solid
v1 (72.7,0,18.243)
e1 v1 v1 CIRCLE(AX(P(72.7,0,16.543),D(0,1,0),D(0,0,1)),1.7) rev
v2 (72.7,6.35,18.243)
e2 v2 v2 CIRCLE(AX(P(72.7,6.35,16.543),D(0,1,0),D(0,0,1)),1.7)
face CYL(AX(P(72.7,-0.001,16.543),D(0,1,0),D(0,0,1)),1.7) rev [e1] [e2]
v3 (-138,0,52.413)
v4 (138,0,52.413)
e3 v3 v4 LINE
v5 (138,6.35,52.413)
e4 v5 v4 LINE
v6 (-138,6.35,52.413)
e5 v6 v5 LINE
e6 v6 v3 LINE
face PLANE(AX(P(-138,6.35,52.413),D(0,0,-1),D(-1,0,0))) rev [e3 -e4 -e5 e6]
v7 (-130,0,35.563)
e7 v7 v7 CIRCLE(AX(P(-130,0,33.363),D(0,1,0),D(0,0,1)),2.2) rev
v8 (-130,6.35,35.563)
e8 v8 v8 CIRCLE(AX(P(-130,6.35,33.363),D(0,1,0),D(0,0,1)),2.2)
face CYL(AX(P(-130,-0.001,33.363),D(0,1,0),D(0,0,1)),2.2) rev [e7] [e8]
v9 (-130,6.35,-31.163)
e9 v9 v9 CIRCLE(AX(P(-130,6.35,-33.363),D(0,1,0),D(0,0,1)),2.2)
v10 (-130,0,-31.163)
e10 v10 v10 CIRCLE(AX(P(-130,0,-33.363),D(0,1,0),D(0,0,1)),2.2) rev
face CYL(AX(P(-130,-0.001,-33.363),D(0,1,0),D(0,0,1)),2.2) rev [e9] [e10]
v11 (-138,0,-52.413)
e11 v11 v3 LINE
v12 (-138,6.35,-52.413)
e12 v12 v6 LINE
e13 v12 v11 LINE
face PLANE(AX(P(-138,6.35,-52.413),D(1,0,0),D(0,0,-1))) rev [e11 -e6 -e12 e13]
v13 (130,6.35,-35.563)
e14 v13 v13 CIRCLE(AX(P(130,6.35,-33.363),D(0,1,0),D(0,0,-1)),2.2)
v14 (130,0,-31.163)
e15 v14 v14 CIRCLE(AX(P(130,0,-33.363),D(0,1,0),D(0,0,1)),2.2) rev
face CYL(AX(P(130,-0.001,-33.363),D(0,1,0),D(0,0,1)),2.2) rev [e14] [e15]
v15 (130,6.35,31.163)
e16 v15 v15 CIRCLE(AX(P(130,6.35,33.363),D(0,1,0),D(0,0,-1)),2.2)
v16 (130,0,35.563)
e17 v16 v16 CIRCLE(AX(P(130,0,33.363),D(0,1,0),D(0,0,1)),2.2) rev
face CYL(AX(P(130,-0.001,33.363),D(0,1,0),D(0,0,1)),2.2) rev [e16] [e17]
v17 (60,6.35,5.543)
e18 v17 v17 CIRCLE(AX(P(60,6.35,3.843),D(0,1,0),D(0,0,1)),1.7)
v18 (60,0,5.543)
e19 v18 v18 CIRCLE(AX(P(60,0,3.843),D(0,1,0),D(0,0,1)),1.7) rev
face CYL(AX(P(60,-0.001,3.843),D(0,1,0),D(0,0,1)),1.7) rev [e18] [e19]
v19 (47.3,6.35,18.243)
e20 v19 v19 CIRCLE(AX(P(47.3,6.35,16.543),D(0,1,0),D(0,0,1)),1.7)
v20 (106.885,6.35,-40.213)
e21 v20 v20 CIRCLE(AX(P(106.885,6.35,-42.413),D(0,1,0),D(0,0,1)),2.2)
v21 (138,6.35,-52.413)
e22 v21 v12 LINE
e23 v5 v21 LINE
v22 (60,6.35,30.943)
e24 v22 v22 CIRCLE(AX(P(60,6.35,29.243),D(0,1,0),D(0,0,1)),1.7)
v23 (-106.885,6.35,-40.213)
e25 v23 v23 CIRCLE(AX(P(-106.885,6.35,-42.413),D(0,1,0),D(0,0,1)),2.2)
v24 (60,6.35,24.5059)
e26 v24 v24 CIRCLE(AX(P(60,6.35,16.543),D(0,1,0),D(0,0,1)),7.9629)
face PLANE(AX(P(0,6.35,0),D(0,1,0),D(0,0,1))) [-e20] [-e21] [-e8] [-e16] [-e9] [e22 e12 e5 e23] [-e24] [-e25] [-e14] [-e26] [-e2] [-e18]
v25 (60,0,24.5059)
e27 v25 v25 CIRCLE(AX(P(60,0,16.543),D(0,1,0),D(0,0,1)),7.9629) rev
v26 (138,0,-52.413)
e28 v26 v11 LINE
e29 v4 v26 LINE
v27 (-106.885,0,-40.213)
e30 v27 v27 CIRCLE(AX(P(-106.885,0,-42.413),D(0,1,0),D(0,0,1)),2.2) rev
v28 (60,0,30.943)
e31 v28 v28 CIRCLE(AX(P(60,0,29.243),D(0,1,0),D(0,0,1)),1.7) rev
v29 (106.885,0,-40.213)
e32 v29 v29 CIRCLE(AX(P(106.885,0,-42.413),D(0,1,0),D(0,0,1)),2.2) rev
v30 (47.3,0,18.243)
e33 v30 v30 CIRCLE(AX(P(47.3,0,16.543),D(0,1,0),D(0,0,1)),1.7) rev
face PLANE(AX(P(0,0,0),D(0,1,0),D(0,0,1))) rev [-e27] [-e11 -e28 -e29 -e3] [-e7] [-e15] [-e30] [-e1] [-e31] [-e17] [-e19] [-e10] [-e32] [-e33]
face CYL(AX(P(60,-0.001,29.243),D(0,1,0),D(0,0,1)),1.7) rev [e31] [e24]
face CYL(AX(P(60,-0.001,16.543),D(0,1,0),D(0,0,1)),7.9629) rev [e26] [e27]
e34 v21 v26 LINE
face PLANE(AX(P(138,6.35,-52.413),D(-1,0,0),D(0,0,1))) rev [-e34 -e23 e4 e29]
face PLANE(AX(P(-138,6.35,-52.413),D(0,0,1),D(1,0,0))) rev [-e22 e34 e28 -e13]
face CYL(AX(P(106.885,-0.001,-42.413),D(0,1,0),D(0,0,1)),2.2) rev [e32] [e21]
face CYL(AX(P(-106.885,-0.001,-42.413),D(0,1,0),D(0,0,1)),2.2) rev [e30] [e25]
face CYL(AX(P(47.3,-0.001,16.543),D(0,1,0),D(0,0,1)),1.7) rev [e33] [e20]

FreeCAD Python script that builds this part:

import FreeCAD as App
import Part
import Sketcher

V = App.Vector


def add_polygon(sketch, points):
    """Adds a closed chain of lines whose ends are joined by coincident constraints."""
    first, n = sketch.GeometryCount, len(points)
    for a, b in zip(points, points[1:] + points[:1]):
        sketch.addGeometry(Part.LineSegment(App.Vector(*a, 0), App.Vector(*b, 0)), False)
    for i in range(n):
        sketch.addConstraint(Sketcher.Constraint("Coincident", first + i, 2, first + (i + 1) % n, 1))

doc = App.newDocument("Part")
params = doc.addObject("Spreadsheet::Sheet", "Params")
for row, (alias, value) in enumerate([
    ("sketch1_width", "276 mm"),
    ("pad1_length", "6.35 mm"),
    ("sketch2_diameter", "4.4 mm"),
    ("sketch3_diameter", "4.4 mm"),
    ("sketch4_diameter", "4.4 mm"),
    ("sketch5_diameter", "4.4 mm"),
    ("sketch6_diameter", "4.4 mm"),
    ("sketch7_diameter", "4.4 mm"),
    ("sketch9_diameter", "3.4 mm"),
    ("sketch10_diameter", "3.4 mm"),
    ("sketch11_diameter", "3.4 mm"),
    ("sketch12_diameter", "3.4 mm"),
], start=1):
    params.set(f"A{row}", alias)
    params.set(f"B{row}", "=" + value)
    params.setAlias(f"B{row}", alias)

body = doc.addObject("PartDesign::Body", "Body")

# Sketch on XZ plane
sketch1 = body.newObject("Sketcher::SketchObject", "Sketch")
sketch1.AttachmentSupport = (doc.getObject("XZ_Plane"), [""])
sketch1.MapMode = "FlatFace"
add_polygon(sketch1, [(-138, -52), (-138, 52), (138, 52), (138, -52)])  # lines 0-3
sketch1.addConstraint(Sketcher.Constraint("Vertical", 0))
sketch1.addConstraint(Sketcher.Constraint("Horizontal", 1))
sketch1.addConstraint(Sketcher.Constraint("Vertical", 2))
sketch1.addConstraint(Sketcher.Constraint("Horizontal", 3))
sketch1.addConstraint(Sketcher.Constraint("Symmetric", 0, 2, 2, 2, -1, 1))
sketch1.addConstraint(Sketcher.Constraint("DistanceX", 1, 1, 1, 2, 276.0))
sketch1.addConstraint(Sketcher.Constraint("DistanceY", 0, 1, 0, 2, 104.826))
sketch1.setExpression("Constraints[9]", "Params.sketch1_width")
pad1 = body.newObject("PartDesign::Pad", "Pad")
pad1.Profile = sketch1
pad1.setExpression("Length", "Params.pad1_length")
pad1.Reversed = True

# Sketch on XZ plane
sketch2 = body.newObject("Sketcher::SketchObject", "Sketch001")
sketch2.AttachmentSupport = (doc.getObject("XZ_Plane"), [""])
sketch2.MapMode = "FlatFace"
sketch2.AttachmentOffset = App.Placement(V(0, 0, -6.35), App.Rotation())
sketch2.addGeometry(Part.Circle(V(-130, -33.4, 0), V(0, 0, 1), 2.2), False)
sketch2.addConstraint(Sketcher.Constraint("Diameter", 0, 4.4))
sketch2.addConstraint(Sketcher.Constraint("DistanceX", 0, 3, -1, 1, 130.0))
sketch2.addConstraint(Sketcher.Constraint("DistanceY", 0, 3, -1, 1, 33.363))
sketch2.setExpression("Constraints[0]", "Params.sketch2_diameter")
pocket1 = body.newObject("PartDesign::Pocket", "Pocket")
pocket1.Profile = sketch2
pocket1.Type = "UpToFirst"
pocket1.Reversed = True

# Sketch on XZ plane
sketch3 = body.newObject("Sketcher::SketchObject", "Sketch002")
sketch3.AttachmentSupport = (doc.getObject("XZ_Plane"), [""])
sketch3.MapMode = "FlatFace"
sketch3.AttachmentOffset = App.Placement(V(0, 0, -6.35), App.Rotation())
sketch3.addGeometry(Part.Circle(V(-130, 33.4, 0), V(0, 0, 1), 2.2), False)
sketch3.addConstraint(Sketcher.Constraint("Diameter", 0, 4.4))
sketch3.addConstraint(Sketcher.Constraint("DistanceX", 0, 3, -1, 1, 130.0))
sketch3.addConstraint(Sketcher.Constraint("DistanceY", -1, 1, 0, 3, 33.363))
sketch3.setExpression("Constraints[0]", "Params.sketch3_diameter")
pocket2 = body.newObject("PartDesign::Pocket", "Pocket001")
pocket2.Profile = sketch3
pocket2.Type = "UpToFirst"
pocket2.Reversed = True

# Sketch on XZ plane
sketch4 = body.newObject("Sketcher::SketchObject", "Sketch003")
sketch4.AttachmentSupport = (doc.getObject("XZ_Plane"), [""])
sketch4.MapMode = "FlatFace"
sketch4.AttachmentOffset = App.Placement(V(0, 0, -6.35), App.Rotation())
sketch4.addGeometry(Part.Circle(V(130, 33.4, 0), V(0, 0, 1), 2.2), False)
sketch4.addConstraint(Sketcher.Constraint("Diameter", 0, 4.4))
sketch4.addConstraint(Sketcher.Constraint("DistanceX", -1, 1, 0, 3, 130.0))
sketch4.addConstraint(Sketcher.Constraint("DistanceY", -1, 1, 0, 3, 33.363))
sketch4.setExpression("Constraints[0]", "Params.sketch4_diameter")
pocket3 = body.newObject("PartDesign::Pocket", "Pocket002")
pocket3.Profile = sketch4
pocket3.Type = "UpToFirst"
pocket3.Reversed = True

# Sketch on XZ plane
sketch5 = body.newObject("Sketcher::SketchObject", "Sketch004")
sketch5.AttachmentSupport = (doc.getObject("XZ_Plane"), [""])
sketch5.MapMode = "FlatFace"
sketch5.AttachmentOffset = App.Placement(V(0, 0, -6.35), App.Rotation())
sketch5.addGeometry(Part.Circle(V(130, -33.4, 0), V(0, 0, 1), 2.2), False)
sketch5.addConstraint(Sketcher.Constraint("Diameter", 0, 4.4))
sketch5.addConstraint(Sketcher.Constraint("DistanceX", -1, 1, 0, 3, 130.0))
sketch5.addConstraint(Sketcher.Constraint("DistanceY", 0, 3, -1, 1, 33.363))
sketch5.setExpression("Constraints[0]", "Params.sketch5_diameter")
pocket4 = body.newObject("PartDesign::Pocket", "Pocket003")
pocket4.Profile = sketch5
pocket4.Type = "UpToFirst"
pocket4.Reversed = True

# Sketch on XZ plane
sketch6 = body.newObject("Sketcher::SketchObject", "Sketch005")
sketch6.AttachmentSupport = (doc.getObject("XZ_Plane"), [""])
sketch6.MapMode = "FlatFace"
sketch6.AttachmentOffset = App.Placement(V(0, 0, -6.35), App.Rotation())
sketch6.addGeometry(Part.Circle(V(-106.9, -42.4, 0), V(0, 0, 1), 2.2), False)
sketch6.addConstraint(Sketcher.Constraint("Diameter", 0, 4.4))
sketch6.addConstraint(Sketcher.Constraint("DistanceX", 0, 3, -1, 1, 106.885))
sketch6.addConstraint(Sketcher.Constraint("DistanceY", 0, 3, -1, 1, 42.413))
sketch6.setExpression("Constraints[0]", "Params.sketch6_diameter")
pocket5 = body.newObject("PartDesign::Pocket", "Pocket004")
pocket5.Profile = sketch6
pocket5.Type = "UpToFirst"
pocket5.Reversed = True

# Sketch on XZ plane
sketch7 = body.newObject("Sketcher::SketchObject", "Sketch006")
sketch7.AttachmentSupport = (doc.getObject("XZ_Plane"), [""])
sketch7.MapMode = "FlatFace"
sketch7.AttachmentOffset = App.Placement(V(0, 0, -6.35), App.Rotation())
sketch7.addGeometry(Part.Circle(V(106.9, -42.4, 0), V(0, 0, 1), 2.2), False)
sketch7.addConstraint(Sketcher.Constraint("Diameter", 0, 4.4))
sketch7.addConstraint(Sketcher.Constraint("DistanceX", -1, 1, 0, 3, 106.885))
sketch7.addConstraint(Sketcher.Constraint("DistanceY", 0, 3, -1, 1, 42.413))
sketch7.setExpression("Constraints[0]", "Params.sketch7_diameter")
pocket6 = body.newObject("PartDesign::Pocket", "Pocket005")
pocket6.Profile = sketch7
pocket6.Type = "UpToFirst"
pocket6.Reversed = True

# Sketch on XZ plane
sketch8 = body.newObject("Sketcher::SketchObject", "Sketch007")
sketch8.AttachmentSupport = (doc.getObject("XZ_Plane"), [""])
sketch8.MapMode = "FlatFace"
sketch8.AttachmentOffset = App.Placement(V(0, 0, -6.35), App.Rotation())
sketch8.addGeometry(Part.Circle(V(60, 17, 0), V(0, 0, 1), 8), False)
sketch8.addConstraint(Sketcher.Constraint("DistanceX", -1, 1, 0, 3, 60.0))
sketch8.addConstraint(Sketcher.Constraint("Diameter", 0, 15.9258))
sketch8.addConstraint(Sketcher.Constraint("DistanceY", -1, 1, 0, 3, 16.543))
pocket7 = body.newObject("PartDesign::Pocket", "Pocket006")
pocket7.Profile = sketch8
pocket7.Type = "UpToFirst"
pocket7.Reversed = True

# Sketch on XZ plane
sketch9 = body.newObject("Sketcher::SketchObject", "Sketch008")
sketch9.AttachmentSupport = (doc.getObject("XZ_Plane"), [""])
sketch9.MapMode = "FlatFace"
sketch9.AttachmentOffset = App.Placement(V(0, 0, -6.35), App.Rotation())
sketch9.addGeometry(Part.Circle(V(60, 3.8, 0), V(0, 0, 1), 1.7), False)
sketch9.addConstraint(Sketcher.Constraint("Diameter", 0, 3.4))
sketch9.addConstraint(Sketcher.Constraint("DistanceX", -1, 1, 0, 3, 60.0))
sketch9.addConstraint(Sketcher.Constraint("DistanceY", -1, 1, 0, 3, 3.843))
sketch9.setExpression("Constraints[0]", "Params.sketch9_diameter")
pocket8 = body.newObject("PartDesign::Pocket", "Pocket007")
pocket8.Profile = sketch9
pocket8.Type = "UpToFirst"
pocket8.Reversed = True

# Sketch on XZ plane
sketch10 = body.newObject("Sketcher::SketchObject", "Sketch009")
sketch10.AttachmentSupport = (doc.getObject("XZ_Plane"), [""])
sketch10.MapMode = "FlatFace"
sketch10.AttachmentOffset = App.Placement(V(0, 0, -6.35), App.Rotation())
sketch10.addGeometry(Part.Circle(V(72.7, 16.5, 0), V(0, 0, 1), 1.7), False)
sketch10.addConstraint(Sketcher.Constraint("Diameter", 0, 3.4))
sketch10.addConstraint(Sketcher.Constraint("DistanceX", -1, 1, 0, 3, 72.7))
sketch10.addConstraint(Sketcher.Constraint("DistanceY", -1, 1, 0, 3, 16.543))
sketch10.setExpression("Constraints[0]", "Params.sketch10_diameter")
pocket9 = body.newObject("PartDesign::Pocket", "Pocket008")
pocket9.Profile = sketch10
pocket9.Type = "UpToFirst"
pocket9.Reversed = True

# Sketch on XZ plane
sketch11 = body.newObject("Sketcher::SketchObject", "Sketch010")
sketch11.AttachmentSupport = (doc.getObject("XZ_Plane"), [""])
sketch11.MapMode = "FlatFace"
sketch11.AttachmentOffset = App.Placement(V(0, 0, -6.35), App.Rotation())
sketch11.addGeometry(Part.Circle(V(60, 29.2, 0), V(0, 0, 1), 1.7), False)
sketch11.addConstraint(Sketcher.Constraint("Diameter", 0, 3.4))
sketch11.addConstraint(Sketcher.Constraint("DistanceX", -1, 1, 0, 3, 60.0))
sketch11.addConstraint(Sketcher.Constraint("DistanceY", -1, 1, 0, 3, 29.243))
sketch11.setExpression("Constraints[0]", "Params.sketch11_diameter")
pocket10 = body.newObject("PartDesign::Pocket", "Pocket009")
pocket10.Profile = sketch11
pocket10.Type = "UpToFirst"
pocket10.Reversed = True

# Sketch on XZ plane
sketch12 = body.newObject("Sketcher::SketchObject", "Sketch011")
sketch12.AttachmentSupport = (doc.getObject("XZ_Plane"), [""])
sketch12.MapMode = "FlatFace"
sketch12.AttachmentOffset = App.Placement(V(0, 0, -6.35), App.Rotation())
sketch12.addGeometry(Part.Circle(V(47.3, 16.5, 0), V(0, 0, 1), 1.7), False)
sketch12.addConstraint(Sketcher.Constraint("Diameter", 0, 3.4))
sketch12.addConstraint(Sketcher.Constraint("DistanceX", -1, 1, 0, 3, 47.3))
sketch12.addConstraint(Sketcher.Constraint("DistanceY", -1, 1, 0, 3, 16.543))
sketch12.setExpression("Constraints[0]", "Params.sketch12_diameter")
pocket11 = body.newObject("PartDesign::Pocket", "Pocket010")
pocket11.Profile = sketch12
pocket11.Type = "UpToFirst"
pocket11.Reversed = True

doc.recompute()
